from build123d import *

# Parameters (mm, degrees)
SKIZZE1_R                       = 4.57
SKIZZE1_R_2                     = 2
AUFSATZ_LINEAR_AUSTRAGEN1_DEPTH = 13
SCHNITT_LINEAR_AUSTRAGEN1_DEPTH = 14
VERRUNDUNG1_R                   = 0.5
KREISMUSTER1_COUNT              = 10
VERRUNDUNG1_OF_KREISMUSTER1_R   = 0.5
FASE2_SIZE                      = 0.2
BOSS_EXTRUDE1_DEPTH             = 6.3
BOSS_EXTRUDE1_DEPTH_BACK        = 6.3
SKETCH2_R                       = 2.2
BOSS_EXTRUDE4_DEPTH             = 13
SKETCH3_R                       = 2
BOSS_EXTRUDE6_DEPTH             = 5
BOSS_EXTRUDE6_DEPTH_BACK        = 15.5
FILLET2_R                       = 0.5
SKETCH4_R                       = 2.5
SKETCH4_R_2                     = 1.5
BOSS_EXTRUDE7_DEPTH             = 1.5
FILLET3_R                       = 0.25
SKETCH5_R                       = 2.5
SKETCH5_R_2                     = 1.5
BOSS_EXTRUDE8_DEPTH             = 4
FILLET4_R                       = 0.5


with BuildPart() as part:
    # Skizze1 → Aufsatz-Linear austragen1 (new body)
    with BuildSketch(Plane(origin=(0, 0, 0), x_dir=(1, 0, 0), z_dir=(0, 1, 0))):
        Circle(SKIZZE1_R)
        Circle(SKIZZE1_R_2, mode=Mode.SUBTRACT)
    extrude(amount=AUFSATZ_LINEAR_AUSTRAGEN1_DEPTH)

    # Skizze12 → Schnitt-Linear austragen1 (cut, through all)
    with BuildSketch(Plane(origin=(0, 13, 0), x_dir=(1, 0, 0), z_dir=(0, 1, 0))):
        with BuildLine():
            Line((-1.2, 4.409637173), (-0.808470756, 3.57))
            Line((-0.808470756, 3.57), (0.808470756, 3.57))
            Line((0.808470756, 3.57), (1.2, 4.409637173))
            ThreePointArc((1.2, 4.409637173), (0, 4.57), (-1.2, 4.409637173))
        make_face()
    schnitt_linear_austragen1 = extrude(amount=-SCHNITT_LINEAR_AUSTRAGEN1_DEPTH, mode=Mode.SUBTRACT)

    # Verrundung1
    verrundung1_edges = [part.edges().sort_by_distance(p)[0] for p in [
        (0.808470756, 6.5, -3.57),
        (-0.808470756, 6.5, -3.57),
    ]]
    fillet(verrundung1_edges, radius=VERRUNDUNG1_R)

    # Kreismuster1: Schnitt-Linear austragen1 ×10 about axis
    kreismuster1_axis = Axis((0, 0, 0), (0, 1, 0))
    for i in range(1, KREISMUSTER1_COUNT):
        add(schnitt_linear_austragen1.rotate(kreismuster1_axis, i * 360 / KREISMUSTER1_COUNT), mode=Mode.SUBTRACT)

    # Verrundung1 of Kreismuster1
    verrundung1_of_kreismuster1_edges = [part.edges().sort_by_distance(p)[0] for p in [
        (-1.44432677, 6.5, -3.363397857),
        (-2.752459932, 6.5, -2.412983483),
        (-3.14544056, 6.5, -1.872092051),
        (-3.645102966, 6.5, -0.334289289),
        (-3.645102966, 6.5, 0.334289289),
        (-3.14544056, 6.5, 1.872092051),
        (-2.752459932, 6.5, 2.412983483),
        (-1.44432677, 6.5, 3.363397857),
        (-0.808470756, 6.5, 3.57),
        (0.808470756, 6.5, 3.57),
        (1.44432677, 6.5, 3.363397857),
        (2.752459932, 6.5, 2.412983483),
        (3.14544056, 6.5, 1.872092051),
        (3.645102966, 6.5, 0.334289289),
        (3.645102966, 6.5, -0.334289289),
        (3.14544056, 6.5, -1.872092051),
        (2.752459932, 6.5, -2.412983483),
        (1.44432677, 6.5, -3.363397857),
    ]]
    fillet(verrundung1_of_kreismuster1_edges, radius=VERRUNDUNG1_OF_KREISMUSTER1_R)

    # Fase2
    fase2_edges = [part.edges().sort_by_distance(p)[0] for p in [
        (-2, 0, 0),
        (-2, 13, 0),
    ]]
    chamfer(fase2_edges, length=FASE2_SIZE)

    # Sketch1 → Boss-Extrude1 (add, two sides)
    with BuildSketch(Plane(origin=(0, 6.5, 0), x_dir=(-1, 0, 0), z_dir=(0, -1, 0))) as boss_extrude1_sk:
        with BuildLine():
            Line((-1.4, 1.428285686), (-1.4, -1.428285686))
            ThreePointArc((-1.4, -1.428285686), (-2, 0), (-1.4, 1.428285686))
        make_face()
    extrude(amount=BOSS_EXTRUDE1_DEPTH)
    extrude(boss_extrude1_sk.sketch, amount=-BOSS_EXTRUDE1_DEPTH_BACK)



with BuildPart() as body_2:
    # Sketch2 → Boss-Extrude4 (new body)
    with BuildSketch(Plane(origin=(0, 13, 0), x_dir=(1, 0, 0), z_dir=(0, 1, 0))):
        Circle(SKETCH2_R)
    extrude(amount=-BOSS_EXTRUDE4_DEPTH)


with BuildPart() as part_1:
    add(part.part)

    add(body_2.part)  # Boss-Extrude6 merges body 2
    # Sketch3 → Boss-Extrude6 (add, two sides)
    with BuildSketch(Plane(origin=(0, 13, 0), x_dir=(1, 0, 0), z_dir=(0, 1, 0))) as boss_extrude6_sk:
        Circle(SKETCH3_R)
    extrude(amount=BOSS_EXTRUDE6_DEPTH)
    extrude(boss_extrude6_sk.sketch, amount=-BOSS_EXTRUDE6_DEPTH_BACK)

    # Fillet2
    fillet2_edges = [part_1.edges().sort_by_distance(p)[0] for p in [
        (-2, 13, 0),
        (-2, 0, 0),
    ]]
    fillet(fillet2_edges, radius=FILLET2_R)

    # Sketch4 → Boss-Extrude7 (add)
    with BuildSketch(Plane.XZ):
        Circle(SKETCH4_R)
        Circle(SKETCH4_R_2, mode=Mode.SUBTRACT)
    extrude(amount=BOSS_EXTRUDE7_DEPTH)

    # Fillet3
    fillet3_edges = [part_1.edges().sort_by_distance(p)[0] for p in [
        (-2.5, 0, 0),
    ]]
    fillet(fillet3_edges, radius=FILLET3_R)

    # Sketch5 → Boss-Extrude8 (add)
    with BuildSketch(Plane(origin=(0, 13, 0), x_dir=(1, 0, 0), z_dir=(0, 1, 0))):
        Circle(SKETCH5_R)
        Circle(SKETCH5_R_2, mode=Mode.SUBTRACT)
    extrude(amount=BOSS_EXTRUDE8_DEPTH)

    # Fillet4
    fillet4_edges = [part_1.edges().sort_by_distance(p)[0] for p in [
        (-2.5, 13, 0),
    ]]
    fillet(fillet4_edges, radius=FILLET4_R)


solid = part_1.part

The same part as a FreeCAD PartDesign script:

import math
import FreeCAD as App
import Part
import Sketcher

V = App.Vector
Q = App.Units.Quantity


def edges_at(feature, points):
    """Names of the edges that pass closest to the given points."""
    edges = feature.Shape.Edges
    near = lambda p: min(range(len(edges)), key=lambda i: edges[i].distToShape(Part.Vertex(*p))[0])
    return sorted({f"Edge{near(p) + 1}" for p in points})

doc = App.newDocument("Part")
body = doc.addObject("PartDesign::Body", "Body")

sketch1 = body.newObject("Sketcher::SketchObject", "Sketch")
sketch1.AttachmentSupport = (doc.getObject("XZ_Plane"), [""])
sketch1.MapMode = "FlatFace"
sketch1.addGeometry([
    Part.Circle(V(0, 0, 0), V(0, 0, 1), 4.6),
    Part.Circle(V(0, 0, 0), V(0, 0, 1), 2),
], False)
sketch1.addConstraint([
    Sketcher.Constraint("Coincident", 0, 3, -1, 1),
    Sketcher.Constraint("Coincident", 1, 3, -1, 1),
    Sketcher.Constraint("Diameter", 1, Q("4 mm")),
    Sketcher.Constraint("Diameter", 0, Q("9.14 mm")),
])
pad1 = body.newObject("PartDesign::Pad", "Pad")
pad1.Profile = sketch1
pad1.Length = 13
pad1.Reversed = True

sketch2 = body.newObject("Sketcher::SketchObject", "Sketch001")
sketch2.AttachmentSupport = (doc.getObject("XZ_Plane"), [""])
sketch2.MapMode = "FlatFace"
sketch2.AttachmentOffset = App.Placement(V(0, 0, -13), App.Rotation())
sketch2.addGeometry([
    Part.LineSegment(V(-1.2, -4.4, 0), V(-0.8, -3.6, 0)),
    Part.LineSegment(V(-0.8, -3.6, 0), V(0.8, -3.6, 0)),
    Part.LineSegment(V(0.8, -3.6, 0), V(1.2, -4.4, 0)),
    Part.ArcOfCircle(Part.Circle(V(0, 0, 0), V(0, 0, 1), 4.6), math.radians(-105), math.radians(-75)),
], False)
sketch2.addConstraint([
    Sketcher.Constraint("Coincident", 0, 2, 1, 1),
    Sketcher.Constraint("Coincident", 1, 2, 2, 1),
    Sketcher.Constraint("Coincident", 2, 2, 3, 2),
    Sketcher.Constraint("Coincident", 3, 1, 0, 1),
    Sketcher.Constraint("Horizontal", 1),
    Sketcher.Constraint("Coincident", 3, 3, -1, 1),
    Sketcher.Constraint("Horizontal", 2, 2, 3, 1),
    Sketcher.Constraint("Equal", 0, 2),
    Sketcher.Constraint("Angle", 0, Q("65 deg")),
    Sketcher.Constraint("Radius", 3, Q("4.57 mm")),
    Sketcher.Constraint("DistanceX", -1, 1, 2, 2, Q("1.2 mm")),
    Sketcher.Constraint("DistanceY", 0, 2, -1, 1, Q("3.57 mm")),
])
pocket1 = body.newObject("PartDesign::Pocket", "Pocket")
pocket1.Profile = sketch2
pocket1.Type = "ThroughAll"
pocket1.Reversed = True
doc.recompute()

fillet = body.newObject("PartDesign::Fillet", "Fillet")
fillet.Base = (pocket1, edges_at(pocket1, [(0.808, 6.5, -3.57), (-0.808, 6.5, -3.57)]))
fillet.Radius = 0.5
doc.recompute()

polarpattern = body.newObject("PartDesign::PolarPattern", "PolarPattern")
polarpattern.Originals = [pocket1]
polarpattern.Axis = (doc.getObject("Y_Axis"), [""])
polarpattern.Angle = 360
polarpattern.Occurrences = 10
body.Tip = polarpattern
doc.recompute()

fillet2 = body.newObject("PartDesign::Fillet", "Fillet001")
fillet2.Base = (polarpattern, edges_at(polarpattern, [
    (-1.444, 6.5, -3.363),
    (-2.752, 6.5, -2.413),
    (-3.145, 6.5, -1.872),
    (-3.645, 6.5, -0.334),
    (-3.645, 6.5, 0.334),
    (-3.145, 6.5, 1.872),
    (-2.752, 6.5, 2.413),
    (-1.444, 6.5, 3.363),
    (-0.808, 6.5, 3.57),
    (0.808, 6.5, 3.57),
    (1.444, 6.5, 3.363),
    (2.752, 6.5, 2.413),
    (3.145, 6.5, 1.872),
    (3.645, 6.5, 0.334),
    (3.645, 6.5, -0.334),
    (3.145, 6.5, -1.872),
    (2.752, 6.5, -2.413),
    (1.444, 6.5, -3.363),
]))
fillet2.Radius = 0.5
doc.recompute()

chamfer = body.newObject("PartDesign::Chamfer", "Chamfer")
chamfer.Base = (fillet2, edges_at(fillet2, [(-2, 0, 0), (-2, 13, 0)]))
chamfer.Size = 0.2

sketch3 = body.newObject("Sketcher::SketchObject", "Sketch002")
sketch3.AttachmentSupport = (doc.getObject("XZ_Plane"), [""])
sketch3.MapMode = "FlatFace"
sketch3.AttachmentOffset = App.Placement(V(0, 0, -6.5), App.Rotation())
sketch3.addGeometry([
    Part.LineSegment(V(1.4, 1.4, 0), V(1.4, -1.4, 0)),
    Part.ArcOfCircle(Part.Circle(V(0, 0, 0), V(0, 0, 1), 2), math.radians(-46), math.radians(46)),
], False)
sketch3.addConstraint([
    Sketcher.Constraint("Coincident", 0, 1, 1, 2),
    Sketcher.Constraint("Coincident", 1, 1, 0, 2),
    Sketcher.Constraint("Vertical", 0),
    Sketcher.Constraint("Coincident", 1, 3, -1, 1),
    Sketcher.Constraint("Radius", 1, Q("2 mm")),
    Sketcher.Constraint("DistanceX", -1, 1, 0, 1, Q("1.4 mm")),
])
pad2 = body.newObject("PartDesign::Pad", "Pad001")
pad2.Profile = sketch3
pad2.Type = "TwoLengths"
pad2.Length = 6.3
pad2.Length2 = 6.3
body2 = doc.addObject("PartDesign::Body", "Body001")

sketch4 = body2.newObject("Sketcher::SketchObject", "Sketch003")
sketch4.AttachmentSupport = (doc.getObject("XZ_Plane001"), [""])
sketch4.MapMode = "FlatFace"
sketch4.AttachmentOffset = App.Placement(V(0, 0, -13), App.Rotation())
sketch4.addGeometry(Part.Circle(V(0, 0, 0), V(0, 0, 1), 2.2), False)
sketch4.addConstraint([
    Sketcher.Constraint("Coincident", 0, 3, -1, 1),
    Sketcher.Constraint("Diameter", 0, Q("4.4 mm")),
])
pad3 = body2.newObject("PartDesign::Pad", "Pad002")
pad3.Profile = sketch4
pad3.Length = 13
doc.recompute()

boolean = body.newObject("PartDesign::Boolean", "Boolean")
boolean.Type = "Fuse"
boolean.addObjects([body2])

sketch5 = body.newObject("Sketcher::SketchObject", "Sketch004")
sketch5.AttachmentSupport = (doc.getObject("XZ_Plane"), [""])
sketch5.MapMode = "FlatFace"
sketch5.AttachmentOffset = App.Placement(V(0, 0, -13), App.Rotation())
sketch5.addGeometry(Part.Circle(V(0, 0, 0), V(0, 0, 1), 2), False)
sketch5.addConstraint([
    Sketcher.Constraint("Coincident", 0, 3, -1, 1),
    Sketcher.Constraint("Diameter", 0, Q("4 mm")),
])
pad4 = body.newObject("PartDesign::Pad", "Pad003")
pad4.Profile = sketch5
pad4.Type = "TwoLengths"
pad4.Length = 5
pad4.Length2 = 15.5
pad4.Reversed = True
doc.recompute()

fillet3 = body.newObject("PartDesign::Fillet", "Fillet002")
fillet3.Base = (pad4, edges_at(pad4, [(-2, 13, 0), (-2, 0, 0)]))
fillet3.Radius = 0.5

sketch6 = body.newObject("Sketcher::SketchObject", "Sketch005")
sketch6.AttachmentSupport = (doc.getObject("XZ_Plane"), [""])
sketch6.MapMode = "FlatFace"
sketch6.addGeometry([
    Part.Circle(V(0, 0, 0), V(0, 0, 1), 2.5),
    Part.Circle(V(0, 0, 0), V(0, 0, 1), 1.5),
], False)
sketch6.addConstraint([
    Sketcher.Constraint("Coincident", 0, 3, -1, 1),
    Sketcher.Constraint("Coincident", 1, 3, -1, 1),
    Sketcher.Constraint("Diameter", 0, Q("5 mm")),
    Sketcher.Constraint("Diameter", 1, Q("3 mm")),
])
pad5 = body.newObject("PartDesign::Pad", "Pad004")
pad5.Profile = sketch6
pad5.Length = 1.5
doc.recompute()

fillet4 = body.newObject("PartDesign::Fillet", "Fillet003")
fillet4.Base = (pad5, edges_at(pad5, [(-2.5, 0, 0)]))
fillet4.Radius = 0.25

sketch7 = body.newObject("Sketcher::SketchObject", "Sketch006")
sketch7.AttachmentSupport = (doc.getObject("XZ_Plane"), [""])
sketch7.MapMode = "FlatFace"
sketch7.AttachmentOffset = App.Placement(V(0, 0, -13), App.Rotation())
sketch7.addGeometry([
    Part.Circle(V(0, 0, 0), V(0, 0, 1), 2.5),
    Part.Circle(V(0, 0, 0), V(0, 0, 1), 1.5),
], False)
sketch7.addConstraint([
    Sketcher.Constraint("Coincident", 0, 3, -1, 1),
    Sketcher.Constraint("Coincident", 1, 3, -1, 1),
    Sketcher.Constraint("Diameter", 0, Q("5 mm")),
    Sketcher.Constraint("Diameter", 1, Q("3 mm")),
])
pad6 = body.newObject("PartDesign::Pad", "Pad005")
pad6.Profile = sketch7
pad6.Length = 4
pad6.Reversed = True
doc.recompute()

fillet5 = body.newObject("PartDesign::Fillet", "Fillet004")
fillet5.Base = (pad6, edges_at(pad6, [(-2.5, 13, 0)]))
fillet5.Radius = 0.5

doc.recompute()
